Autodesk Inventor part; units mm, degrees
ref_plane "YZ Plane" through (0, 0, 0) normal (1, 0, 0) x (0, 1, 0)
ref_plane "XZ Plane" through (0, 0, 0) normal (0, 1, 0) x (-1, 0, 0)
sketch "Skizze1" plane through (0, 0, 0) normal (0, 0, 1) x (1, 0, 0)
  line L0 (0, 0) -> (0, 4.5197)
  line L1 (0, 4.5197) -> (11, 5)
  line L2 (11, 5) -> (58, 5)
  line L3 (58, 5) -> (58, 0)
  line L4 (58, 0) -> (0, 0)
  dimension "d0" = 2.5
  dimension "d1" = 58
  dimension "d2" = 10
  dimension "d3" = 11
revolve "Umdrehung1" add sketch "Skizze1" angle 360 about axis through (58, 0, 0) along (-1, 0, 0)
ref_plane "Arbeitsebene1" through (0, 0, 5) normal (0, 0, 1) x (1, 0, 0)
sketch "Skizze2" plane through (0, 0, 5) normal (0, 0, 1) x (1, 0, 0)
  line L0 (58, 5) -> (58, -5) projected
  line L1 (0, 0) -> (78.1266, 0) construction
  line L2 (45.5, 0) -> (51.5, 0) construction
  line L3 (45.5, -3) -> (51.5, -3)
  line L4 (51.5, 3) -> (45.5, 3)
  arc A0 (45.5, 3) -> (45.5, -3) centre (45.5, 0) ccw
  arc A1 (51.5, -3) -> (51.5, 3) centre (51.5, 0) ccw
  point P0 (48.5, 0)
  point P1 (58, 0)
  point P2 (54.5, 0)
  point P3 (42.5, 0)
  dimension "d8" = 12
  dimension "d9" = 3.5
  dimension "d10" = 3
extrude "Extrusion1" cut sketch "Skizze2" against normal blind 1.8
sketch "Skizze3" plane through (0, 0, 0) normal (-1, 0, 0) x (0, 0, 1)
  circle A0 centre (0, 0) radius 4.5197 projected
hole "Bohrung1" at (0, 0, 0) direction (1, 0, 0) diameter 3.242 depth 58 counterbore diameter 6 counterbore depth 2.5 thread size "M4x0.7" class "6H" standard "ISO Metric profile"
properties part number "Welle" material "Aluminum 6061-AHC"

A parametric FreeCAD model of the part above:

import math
import FreeCAD as App
import Part
import Sketcher

V = App.Vector
Q = App.Units.Quantity


def add_polygon(sketch, points):
    """Adds a closed chain of lines whose ends are joined by coincident constraints."""
    first, n = sketch.GeometryCount, len(points)
    for a, b in zip(points, points[1:] + points[:1]):
        sketch.addGeometry(Part.LineSegment(App.Vector(*a, 0), App.Vector(*b, 0)), False)
    for i in range(n):
        sketch.addConstraint(Sketcher.Constraint("Coincident", first + i, 2, first + (i + 1) % n, 1))

doc = App.newDocument("Part")
body = doc.addObject("PartDesign::Body", "Body")

# Sketch on XY plane
sketch1 = doc.addObject("Sketcher::SketchObject", "Sketch")
body.addObject(sketch1)
sketch1.AttachmentSupport = (doc.XY_Plane, [""])
sketch1.MapMode = "FlatFace"
add_polygon(sketch1, [(0, 4.5), (0, 0), (58, 0), (58, 5), (11, 5)])  # lines 0-4
sketch1.addConstraint(Sketcher.Constraint("Vertical", 0))
sketch1.addConstraint(Sketcher.Constraint("Horizontal", 1))
sketch1.addConstraint(Sketcher.Constraint("Vertical", 2))
sketch1.addConstraint(Sketcher.Constraint("Horizontal", 3))
sketch1.addConstraint(Sketcher.Constraint("Coincident", 0, 2, -1, 1))
sketch1.addConstraint(Sketcher.Constraint("DistanceX", 1, 1, 1, 2, 58.0))
sketch1.addConstraint(Sketcher.Constraint("DistanceX", -1, 1, 3, 2, 11.0))
sketch1.addConstraint(Sketcher.Constraint("DistanceY", 2, 1, 2, 2, 5.0))
sketch1.addConstraint(Sketcher.Constraint("Angle", 4, Q("-177.4998 deg")))
revolution = doc.addObject("PartDesign::Revolution", "Revolution")
body.addObject(revolution)
revolution.Profile = sketch1
revolution.ReferenceAxis = (sketch1, ["H_Axis"])
revolution.Angle = 360

# Sketch on XY plane
sketch2 = doc.addObject("Sketcher::SketchObject", "Sketch001")
body.addObject(sketch2)
sketch2.AttachmentSupport = (doc.XY_Plane, [""])
sketch2.MapMode = "FlatFace"
sketch2.AttachmentOffset = App.Placement(V(0, 0, 5), App.Rotation())
sketch2.addGeometry(Part.ArcOfCircle(Part.Circle(V(45.5, 0, 0), V(0, 0, 1), 3), math.radians(90), math.radians(270)), False)
sketch2.addGeometry(Part.LineSegment(V(45.5, -3, 0), V(51.5, -3, 0)), False)
sketch2.addGeometry(Part.ArcOfCircle(Part.Circle(V(51.5, 0, 0), V(0, 0, 1), 3), math.radians(-90), math.radians(90)), False)
sketch2.addGeometry(Part.LineSegment(V(51.5, 3, 0), V(45.5, 3, 0)), False)
sketch2.addConstraint(Sketcher.Constraint("Tangent", 0, 2, 1, 1))
sketch2.addConstraint(Sketcher.Constraint("Tangent", 1, 2, 2, 1))
sketch2.addConstraint(Sketcher.Constraint("Tangent", 2, 2, 3, 1))
sketch2.addConstraint(Sketcher.Constraint("Tangent", 3, 2, 0, 1))
sketch2.addConstraint(Sketcher.Constraint("Horizontal", 1))
sketch2.addConstraint(Sketcher.Constraint("Horizontal", 3))
sketch2.addConstraint(Sketcher.Constraint("PointOnObject", 0, 3, -1))
sketch2.addConstraint(Sketcher.Constraint("Radius", 0, 3.0))
sketch2.addConstraint(Sketcher.Constraint("DistanceX", 1, 1, 1, 2, 6.0))
sketch2.addConstraint(Sketcher.Constraint("DistanceX", -1, 1, 0, 3, 45.5))
pocket1 = doc.addObject("PartDesign::Pocket", "Pocket")
body.addObject(pocket1)
pocket1.Profile = sketch2
pocket1.Length = 1.8

# Sketch on YZ plane
sketch3 = doc.addObject("Sketcher::SketchObject", "Sketch002")
body.addObject(sketch3)
sketch3.AttachmentSupport = (doc.YZ_Plane, [""])
sketch3.MapMode = "FlatFace"
sketch3.addGeometry(Part.Circle(V(0, 0, 0), V(0, 0, 1), 1.6), False)
sketch3.addConstraint(Sketcher.Constraint("Coincident", 0, 3, -1, 1))
sketch3.addConstraint(Sketcher.Constraint("Diameter", 0, 3.242))
doc.recompute()
hole = doc.addObject("PartDesign::Hole", "Hole")
body.addObject(hole)
hole.Profile = sketch3
hole.ThreadType = "None"
hole.Diameter = 3.242
hole.DepthType = "Dimension"
hole.Depth = 58
hole.DrillPoint = "Flat"
hole.HoleCutType = "Counterbore"
hole.HoleCutDiameter = 6
hole.HoleCutDepth = 2.5
hole.Reversed = True

doc.recompute()
